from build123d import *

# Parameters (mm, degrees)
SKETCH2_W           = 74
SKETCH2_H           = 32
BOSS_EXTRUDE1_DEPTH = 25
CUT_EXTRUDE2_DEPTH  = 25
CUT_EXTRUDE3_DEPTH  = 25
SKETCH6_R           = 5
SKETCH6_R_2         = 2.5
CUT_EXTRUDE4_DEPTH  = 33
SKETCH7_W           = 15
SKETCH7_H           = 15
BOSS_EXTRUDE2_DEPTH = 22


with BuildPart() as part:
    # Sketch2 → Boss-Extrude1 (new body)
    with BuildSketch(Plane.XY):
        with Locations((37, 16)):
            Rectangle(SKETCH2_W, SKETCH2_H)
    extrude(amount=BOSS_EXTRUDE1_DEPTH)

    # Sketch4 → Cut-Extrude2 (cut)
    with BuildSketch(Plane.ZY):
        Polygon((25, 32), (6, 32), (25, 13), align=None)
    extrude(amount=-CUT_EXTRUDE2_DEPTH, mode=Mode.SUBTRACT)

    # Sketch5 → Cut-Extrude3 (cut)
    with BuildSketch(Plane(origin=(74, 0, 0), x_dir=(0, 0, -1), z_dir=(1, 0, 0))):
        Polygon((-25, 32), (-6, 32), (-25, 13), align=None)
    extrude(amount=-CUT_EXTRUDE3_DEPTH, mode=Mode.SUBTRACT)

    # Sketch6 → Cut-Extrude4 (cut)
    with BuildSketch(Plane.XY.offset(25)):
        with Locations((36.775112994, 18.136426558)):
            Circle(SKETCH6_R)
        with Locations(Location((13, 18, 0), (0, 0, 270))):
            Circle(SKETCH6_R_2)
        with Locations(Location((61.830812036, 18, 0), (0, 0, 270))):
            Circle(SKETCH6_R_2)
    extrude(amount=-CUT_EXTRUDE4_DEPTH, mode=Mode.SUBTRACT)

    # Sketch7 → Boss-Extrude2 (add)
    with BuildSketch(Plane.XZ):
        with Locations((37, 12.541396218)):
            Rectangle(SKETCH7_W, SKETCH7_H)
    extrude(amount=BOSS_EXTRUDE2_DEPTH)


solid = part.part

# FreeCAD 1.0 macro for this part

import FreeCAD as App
import Part
import Sketcher
Q = App.Units.Quantity

doc = App.newDocument("Part")
body = doc.addObject("PartDesign::Body", "Body")

# Sketch on XY plane
sketch1 = body.newObject("Sketcher::SketchObject", "Sketch")
sketch1.AttachmentSupport = (doc.getObject("XY_Plane"), [""])
sketch1.MapMode = "FlatFace"
sketch1.addGeometry(Part.LineSegment(App.Vector(0, 32, 0), App.Vector(0, 0, 0)), False)
sketch1.addGeometry(Part.LineSegment(App.Vector(0, 0, 0), App.Vector(74, 0, 0)), False)
sketch1.addGeometry(Part.LineSegment(App.Vector(74, 0, 0), App.Vector(74, 32, 0)), False)
sketch1.addGeometry(Part.LineSegment(App.Vector(74, 32, 0), App.Vector(0, 32, 0)), False)
sketch1.addConstraint(Sketcher.Constraint("Coincident", 0, 2, 1, 1))
sketch1.addConstraint(Sketcher.Constraint("Coincident", 1, 2, 2, 1))
sketch1.addConstraint(Sketcher.Constraint("Coincident", 2, 2, 3, 1))
sketch1.addConstraint(Sketcher.Constraint("Coincident", 3, 2, 0, 1))
sketch1.addConstraint(Sketcher.Constraint("Vertical", 0))
sketch1.addConstraint(Sketcher.Constraint("Horizontal", 1))
sketch1.addConstraint(Sketcher.Constraint("Vertical", 2))
sketch1.addConstraint(Sketcher.Constraint("Horizontal", 3))
sketch1.addConstraint(Sketcher.Constraint("Coincident", 0, 2, -1, 1))
sketch1.addConstraint(Sketcher.Constraint("DistanceX", 1, 1, 1, 2, Q("74 mm")))
sketch1.addConstraint(Sketcher.Constraint("DistanceY", 0, 2, 0, 1, Q("32 mm")))
pad1 = body.newObject("PartDesign::Pad", "Pad")
pad1.Profile = sketch1
pad1.Length = 25

# Sketch on YZ plane
sketch2 = body.newObject("Sketcher::SketchObject", "Sketch001")
sketch2.AttachmentSupport = (doc.getObject("YZ_Plane"), [""])
sketch2.MapMode = "FlatFace"
sketch2.addGeometry(Part.LineSegment(App.Vector(32, 25, 0), App.Vector(32, 6, 0)), False)
sketch2.addGeometry(Part.LineSegment(App.Vector(32, 6, 0), App.Vector(13, 25, 0)), False)
sketch2.addGeometry(Part.LineSegment(App.Vector(13, 25, 0), App.Vector(32, 25, 0)), False)
sketch2.addConstraint(Sketcher.Constraint("Coincident", 0, 2, 1, 1))
sketch2.addConstraint(Sketcher.Constraint("Coincident", 1, 2, 2, 1))
sketch2.addConstraint(Sketcher.Constraint("Coincident", 2, 2, 0, 1))
sketch2.addConstraint(Sketcher.Constraint("Vertical", 0))
sketch2.addConstraint(Sketcher.Constraint("Horizontal", 2))
sketch2.addConstraint(Sketcher.Constraint("Equal", 2, 0))
sketch2.addConstraint(Sketcher.Constraint("DistanceX", 2, 1, 2, 2, Q("19 mm")))
sketch2.addConstraint(Sketcher.Constraint("DistanceX", -1, 1, 0, 2, Q("32 mm")))
sketch2.addConstraint(Sketcher.Constraint("DistanceY", -1, 1, 0, 2, Q("6 mm")))
pocket1 = body.newObject("PartDesign::Pocket", "Pocket")
pocket1.Profile = sketch2
pocket1.Length = 25
pocket1.Reversed = True

# Sketch on YZ plane
sketch3 = body.newObject("Sketcher::SketchObject", "Sketch002")
sketch3.AttachmentSupport = (doc.getObject("YZ_Plane"), [""])
sketch3.MapMode = "FlatFace"
sketch3.AttachmentOffset = App.Placement(App.Vector(0, 0, 74), App.Rotation())
sketch3.addGeometry(Part.LineSegment(App.Vector(32, 6, 0), App.Vector(32, 25, 0)), False)
sketch3.addGeometry(Part.LineSegment(App.Vector(32, 25, 0), App.Vector(13, 25, 0)), False)
sketch3.addGeometry(Part.LineSegment(App.Vector(13, 25, 0), App.Vector(32, 6, 0)), False)
sketch3.addConstraint(Sketcher.Constraint("Coincident", 0, 2, 1, 1))
sketch3.addConstraint(Sketcher.Constraint("Coincident", 1, 2, 2, 1))
sketch3.addConstraint(Sketcher.Constraint("Coincident", 2, 2, 0, 1))
sketch3.addConstraint(Sketcher.Constraint("Vertical", 0))
sketch3.addConstraint(Sketcher.Constraint("Horizontal", 1))
sketch3.addConstraint(Sketcher.Constraint("Equal", 1, 0))
sketch3.addConstraint(Sketcher.Constraint("DistanceX", 1, 2, 1, 1, Q("19 mm")))
sketch3.addConstraint(Sketcher.Constraint("DistanceX", -1, 1, 0, 2, Q("32 mm")))
sketch3.addConstraint(Sketcher.Constraint("DistanceY", -1, 1, 0, 2, Q("25 mm")))
pocket2 = body.newObject("PartDesign::Pocket", "Pocket001")
pocket2.Profile = sketch3
pocket2.Length = 25

# Sketch on XY plane
sketch4 = body.newObject("Sketcher::SketchObject", "Sketch003")
sketch4.AttachmentSupport = (doc.getObject("XY_Plane"), [""])
sketch4.MapMode = "FlatFace"
sketch4.AttachmentOffset = App.Placement(App.Vector(0, 0, 25), App.Rotation())
sketch4.addGeometry(Part.Circle(App.Vector(36.8, 18.1, 0), App.Vector(0, 0, 1), 5), False)
sketch4.addGeometry(Part.Circle(App.Vector(13, 18, 0), App.Vector(0, 0, 1), 2.5), False)
sketch4.addGeometry(Part.Circle(App.Vector(61.8, 18, 0), App.Vector(0, 0, 1), 2.5), False)
sketch4.addConstraint(Sketcher.Constraint("Equal", 1, 2))
sketch4.addConstraint(Sketcher.Constraint("Horizontal", 1, 3, 2, 3))
sketch4.addConstraint(Sketcher.Constraint("Diameter", 0, Q("10 mm")))
sketch4.addConstraint(Sketcher.Constraint("Diameter", 1, Q("5 mm")))
sketch4.addConstraint(Sketcher.Constraint("DistanceX", -1, 1, 1, 3, Q("13 mm")))
sketch4.addConstraint(Sketcher.Constraint("DistanceY", -1, 1, 1, 3, Q("18 mm")))
sketch4.addConstraint(Sketcher.Constraint("DistanceX", 0, 3, 2, 3, Q("25.055699 mm")))
sketch4.addConstraint(Sketcher.Constraint("DistanceX", -1, 1, 0, 3, Q("36.775113 mm")))
sketch4.addConstraint(Sketcher.Constraint("DistanceY", -1, 1, 0, 3, Q("18.136427 mm")))
pocket3 = body.newObject("PartDesign::Pocket", "Pocket002")
pocket3.Profile = sketch4
pocket3.Length = 33

# Sketch on XZ plane
sketch5 = body.newObject("Sketcher::SketchObject", "Sketch004")
sketch5.AttachmentSupport = (doc.getObject("XZ_Plane"), [""])
sketch5.MapMode = "FlatFace"
sketch5.addGeometry(Part.LineSegment(App.Vector(30, 20, 0), App.Vector(30, 5, 0)), False)
sketch5.addGeometry(Part.LineSegment(App.Vector(30, 5, 0), App.Vector(44, 5, 0)), False)
sketch5.addGeometry(Part.LineSegment(App.Vector(44, 5, 0), App.Vector(44, 20, 0)), False)
sketch5.addGeometry(Part.LineSegment(App.Vector(44, 20, 0), App.Vector(30, 20, 0)), False)
sketch5.addConstraint(Sketcher.Constraint("Coincident", 0, 2, 1, 1))
sketch5.addConstraint(Sketcher.Constraint("Coincident", 1, 2, 2, 1))
sketch5.addConstraint(Sketcher.Constraint("Coincident", 2, 2, 3, 1))
sketch5.addConstraint(Sketcher.Constraint("Coincident", 3, 2, 0, 1))
sketch5.addConstraint(Sketcher.Constraint("Vertical", 0))
sketch5.addConstraint(Sketcher.Constraint("Horizontal", 1))
sketch5.addConstraint(Sketcher.Constraint("Vertical", 2))
sketch5.addConstraint(Sketcher.Constraint("Horizontal", 3))
sketch5.addConstraint(Sketcher.Constraint("Equal", 3, 0))
sketch5.addConstraint(Sketcher.Constraint("DistanceX", 1, 1, 1, 2, Q("15 mm")))
sketch5.addConstraint(Sketcher.Constraint("DistanceX", -1, 1, 0, 2, Q("29.5 mm")))
sketch5.addConstraint(Sketcher.Constraint("DistanceY", -1, 1, 0, 2, Q("5.041396 mm")))
pad2 = body.newObject("PartDesign::Pad", "Pad001")
pad2.Profile = sketch5
pad2.Length = 22

doc.recompute()
